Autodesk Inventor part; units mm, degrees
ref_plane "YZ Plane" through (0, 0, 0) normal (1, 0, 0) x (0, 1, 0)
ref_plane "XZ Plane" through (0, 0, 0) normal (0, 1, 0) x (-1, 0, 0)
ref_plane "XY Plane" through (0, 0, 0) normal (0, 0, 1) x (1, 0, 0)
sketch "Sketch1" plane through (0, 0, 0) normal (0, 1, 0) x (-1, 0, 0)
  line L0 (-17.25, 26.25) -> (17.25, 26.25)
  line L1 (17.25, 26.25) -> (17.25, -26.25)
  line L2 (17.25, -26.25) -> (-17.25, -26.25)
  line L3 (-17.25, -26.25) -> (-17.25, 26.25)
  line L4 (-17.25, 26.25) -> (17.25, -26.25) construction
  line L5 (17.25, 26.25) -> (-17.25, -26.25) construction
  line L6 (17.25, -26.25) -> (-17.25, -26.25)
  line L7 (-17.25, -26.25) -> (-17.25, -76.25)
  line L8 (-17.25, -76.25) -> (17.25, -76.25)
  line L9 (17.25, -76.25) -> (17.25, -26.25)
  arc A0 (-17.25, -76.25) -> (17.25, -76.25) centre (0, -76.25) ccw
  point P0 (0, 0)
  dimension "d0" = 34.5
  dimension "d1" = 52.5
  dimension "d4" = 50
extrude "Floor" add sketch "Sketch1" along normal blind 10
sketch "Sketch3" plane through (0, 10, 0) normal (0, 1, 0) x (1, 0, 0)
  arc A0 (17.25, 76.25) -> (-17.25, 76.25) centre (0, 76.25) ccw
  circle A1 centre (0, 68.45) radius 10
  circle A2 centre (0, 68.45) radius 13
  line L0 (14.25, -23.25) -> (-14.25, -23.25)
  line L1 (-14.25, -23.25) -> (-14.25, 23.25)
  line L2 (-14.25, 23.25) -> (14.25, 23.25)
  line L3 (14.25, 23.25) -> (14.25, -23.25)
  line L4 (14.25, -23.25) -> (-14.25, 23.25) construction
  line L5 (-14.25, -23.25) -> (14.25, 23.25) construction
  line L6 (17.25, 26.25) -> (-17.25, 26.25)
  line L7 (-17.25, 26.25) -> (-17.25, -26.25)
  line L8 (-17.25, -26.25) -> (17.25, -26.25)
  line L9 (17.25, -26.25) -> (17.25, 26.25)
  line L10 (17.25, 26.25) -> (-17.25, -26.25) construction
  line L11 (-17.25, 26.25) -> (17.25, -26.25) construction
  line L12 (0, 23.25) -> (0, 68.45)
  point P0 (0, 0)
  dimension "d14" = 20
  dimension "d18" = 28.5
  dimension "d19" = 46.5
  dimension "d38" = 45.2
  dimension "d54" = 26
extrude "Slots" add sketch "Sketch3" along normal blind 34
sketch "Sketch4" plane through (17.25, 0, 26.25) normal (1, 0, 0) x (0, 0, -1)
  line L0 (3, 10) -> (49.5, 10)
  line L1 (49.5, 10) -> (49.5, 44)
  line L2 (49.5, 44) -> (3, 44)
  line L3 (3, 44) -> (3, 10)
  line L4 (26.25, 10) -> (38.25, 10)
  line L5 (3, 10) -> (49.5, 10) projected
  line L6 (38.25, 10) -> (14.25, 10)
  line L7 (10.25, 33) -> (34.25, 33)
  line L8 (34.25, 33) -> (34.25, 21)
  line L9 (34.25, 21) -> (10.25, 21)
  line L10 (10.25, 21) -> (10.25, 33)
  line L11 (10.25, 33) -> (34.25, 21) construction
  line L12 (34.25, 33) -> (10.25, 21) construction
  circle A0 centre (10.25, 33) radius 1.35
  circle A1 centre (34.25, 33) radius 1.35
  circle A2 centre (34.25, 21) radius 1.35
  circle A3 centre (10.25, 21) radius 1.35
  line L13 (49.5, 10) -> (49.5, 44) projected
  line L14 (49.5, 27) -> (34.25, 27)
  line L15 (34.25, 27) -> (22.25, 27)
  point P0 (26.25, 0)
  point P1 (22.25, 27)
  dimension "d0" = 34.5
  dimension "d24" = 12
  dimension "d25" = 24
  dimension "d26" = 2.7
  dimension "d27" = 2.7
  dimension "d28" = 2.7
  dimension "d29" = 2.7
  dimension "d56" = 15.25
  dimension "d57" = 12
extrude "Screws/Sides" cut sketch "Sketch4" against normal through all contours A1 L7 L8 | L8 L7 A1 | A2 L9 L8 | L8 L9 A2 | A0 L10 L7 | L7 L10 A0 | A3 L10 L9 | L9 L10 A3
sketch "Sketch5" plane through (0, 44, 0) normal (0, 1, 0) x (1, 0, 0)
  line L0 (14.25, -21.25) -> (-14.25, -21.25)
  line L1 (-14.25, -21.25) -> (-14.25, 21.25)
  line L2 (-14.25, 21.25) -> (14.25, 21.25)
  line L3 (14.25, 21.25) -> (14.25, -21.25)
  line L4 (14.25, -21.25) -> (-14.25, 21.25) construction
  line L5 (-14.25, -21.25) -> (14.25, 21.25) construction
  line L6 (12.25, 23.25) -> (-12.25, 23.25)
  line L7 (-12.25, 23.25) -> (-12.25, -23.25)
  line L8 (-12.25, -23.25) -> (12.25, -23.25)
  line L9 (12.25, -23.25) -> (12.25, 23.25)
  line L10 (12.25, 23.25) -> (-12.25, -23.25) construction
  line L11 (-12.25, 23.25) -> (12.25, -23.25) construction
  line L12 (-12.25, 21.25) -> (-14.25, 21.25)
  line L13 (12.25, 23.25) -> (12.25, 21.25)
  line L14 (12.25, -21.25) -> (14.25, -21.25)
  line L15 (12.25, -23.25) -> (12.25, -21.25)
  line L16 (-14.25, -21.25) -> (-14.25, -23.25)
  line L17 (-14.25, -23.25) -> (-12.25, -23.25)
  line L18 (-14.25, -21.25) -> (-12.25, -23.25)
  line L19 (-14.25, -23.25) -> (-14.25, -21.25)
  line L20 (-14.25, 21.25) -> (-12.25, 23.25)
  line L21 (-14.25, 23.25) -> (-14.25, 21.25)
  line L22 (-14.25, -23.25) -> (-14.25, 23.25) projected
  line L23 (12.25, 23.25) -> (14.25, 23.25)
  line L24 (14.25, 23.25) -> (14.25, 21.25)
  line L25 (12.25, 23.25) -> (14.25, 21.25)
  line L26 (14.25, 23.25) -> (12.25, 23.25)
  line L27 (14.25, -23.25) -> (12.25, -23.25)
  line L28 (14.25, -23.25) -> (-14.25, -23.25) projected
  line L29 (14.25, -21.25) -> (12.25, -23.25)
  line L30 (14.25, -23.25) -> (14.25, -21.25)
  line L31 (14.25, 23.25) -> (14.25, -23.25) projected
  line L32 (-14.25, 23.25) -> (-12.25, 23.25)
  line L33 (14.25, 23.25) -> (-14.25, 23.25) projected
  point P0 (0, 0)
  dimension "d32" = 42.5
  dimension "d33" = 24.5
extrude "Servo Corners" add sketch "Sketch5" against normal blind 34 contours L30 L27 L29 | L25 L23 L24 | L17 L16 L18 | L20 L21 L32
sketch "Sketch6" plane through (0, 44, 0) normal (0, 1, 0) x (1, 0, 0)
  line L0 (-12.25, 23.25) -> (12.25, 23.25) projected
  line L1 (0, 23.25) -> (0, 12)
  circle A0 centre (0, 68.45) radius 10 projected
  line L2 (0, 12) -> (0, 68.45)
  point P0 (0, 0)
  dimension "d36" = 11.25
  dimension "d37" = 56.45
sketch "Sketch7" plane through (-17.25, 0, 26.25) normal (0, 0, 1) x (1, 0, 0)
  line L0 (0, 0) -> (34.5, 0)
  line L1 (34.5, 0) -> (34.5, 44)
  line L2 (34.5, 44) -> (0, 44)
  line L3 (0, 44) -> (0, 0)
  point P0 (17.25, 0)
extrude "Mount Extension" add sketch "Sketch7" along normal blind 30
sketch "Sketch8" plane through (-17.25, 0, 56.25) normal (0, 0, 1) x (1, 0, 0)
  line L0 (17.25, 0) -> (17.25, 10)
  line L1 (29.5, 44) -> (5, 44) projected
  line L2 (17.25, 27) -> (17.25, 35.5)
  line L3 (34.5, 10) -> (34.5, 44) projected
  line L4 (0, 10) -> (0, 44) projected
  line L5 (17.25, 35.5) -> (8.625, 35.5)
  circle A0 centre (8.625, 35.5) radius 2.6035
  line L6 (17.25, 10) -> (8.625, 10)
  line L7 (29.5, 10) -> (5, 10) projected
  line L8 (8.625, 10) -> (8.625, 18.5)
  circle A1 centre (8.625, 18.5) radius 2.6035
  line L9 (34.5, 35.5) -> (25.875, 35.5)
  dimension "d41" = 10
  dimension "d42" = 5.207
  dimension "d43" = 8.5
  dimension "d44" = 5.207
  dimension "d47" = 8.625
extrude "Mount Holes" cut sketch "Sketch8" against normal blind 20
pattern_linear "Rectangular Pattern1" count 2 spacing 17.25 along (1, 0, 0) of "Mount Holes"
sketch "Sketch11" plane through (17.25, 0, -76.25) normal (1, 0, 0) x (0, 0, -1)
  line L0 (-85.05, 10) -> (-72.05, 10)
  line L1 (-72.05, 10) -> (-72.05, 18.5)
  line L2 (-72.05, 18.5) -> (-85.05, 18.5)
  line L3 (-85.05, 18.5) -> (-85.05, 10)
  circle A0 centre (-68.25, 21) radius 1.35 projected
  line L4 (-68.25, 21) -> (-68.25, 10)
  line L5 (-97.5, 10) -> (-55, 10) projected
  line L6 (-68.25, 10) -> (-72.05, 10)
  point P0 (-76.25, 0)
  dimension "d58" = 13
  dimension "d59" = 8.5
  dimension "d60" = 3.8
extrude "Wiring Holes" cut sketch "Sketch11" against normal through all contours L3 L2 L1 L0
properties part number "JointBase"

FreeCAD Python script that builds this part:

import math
import FreeCAD as App
import Part
import Sketcher
from FreeCAD import Vector

doc = App.newDocument("Part")
body = doc.addObject("PartDesign::Body", "Body")

sketch1 = body.newObject("Sketcher::SketchObject", "Sketch")
sketch1.AttachmentSupport = (doc.getObject("XZ_Plane"), [""])
sketch1.MapMode = "FlatFace"
sketch1.addGeometry(Part.LineSegment(Vector(-17.25, 26.25, 0), Vector(17.25, 26.25, 0)), False)
sketch1.addGeometry(Part.LineSegment(Vector(17.25, 26.25, 0), Vector(17.25, -76.25, 0)), False)
sketch1.addGeometry(Part.ArcOfCircle(Part.Circle(Vector(0, -76.25, 0), Vector(0, 0, 1), 17.25), math.radians(180), math.radians(360)), False)
sketch1.addGeometry(Part.LineSegment(Vector(-17.25, -76.25, 0), Vector(-17.25, 26.25, 0)), False)
sketch1.addConstraint(Sketcher.Constraint("Coincident", 0, 2, 1, 1))
sketch1.addConstraint(Sketcher.Constraint("Tangent", 1, 2, 2, 2))
sketch1.addConstraint(Sketcher.Constraint("Tangent", 2, 1, 3, 1))
sketch1.addConstraint(Sketcher.Constraint("Coincident", 3, 2, 0, 1))
sketch1.addConstraint(Sketcher.Constraint("Horizontal", 0))
sketch1.addConstraint(Sketcher.Constraint("Vertical", 1))
sketch1.addConstraint(Sketcher.Constraint("Vertical", 3))
sketch1.addConstraint(Sketcher.Constraint("PointOnObject", 2, 3, -2))
sketch1.addConstraint(Sketcher.Constraint("Radius", 2, 17.25))
sketch1.addConstraint(Sketcher.Constraint("DistanceY", 1, 2, 1, 1, 102.5))
sketch1.addConstraint(Sketcher.Constraint("DistanceY", 2, 3, -1, 1, 76.25))
pad1 = body.newObject("PartDesign::Pad", "Pad")
pad1.Profile = sketch1
pad1.Length = 10
pad1.Reversed = True

sketch2 = body.newObject("Sketcher::SketchObject", "Sketch001")
sketch2.AttachmentSupport = (doc.getObject("XZ_Plane"), [""])
sketch2.MapMode = "FlatFace"
sketch2.AttachmentOffset = App.Placement(Vector(0, 0, -10), App.Rotation())
sketch2.addGeometry(Part.Circle(Vector(0, -68.45, 0), Vector(0, 0, 1), 13), False)
sketch2.addGeometry(Part.Circle(Vector(0, -68.45, 0), Vector(0, 0, 1), 10), False)
sketch2.addGeometry(Part.LineSegment(Vector(17.25, -26.25, 0), Vector(0, -26.25, 0)), False)
sketch2.addGeometry(Part.LineSegment(Vector(0, -26.25, 0), Vector(-17.25, -26.25, 0)), False)
sketch2.addGeometry(Part.LineSegment(Vector(-17.25, -26.25, 0), Vector(-17.25, 26.25, 0)), False)
sketch2.addGeometry(Part.LineSegment(Vector(-17.25, 26.25, 0), Vector(17.25, 26.25, 0)), False)
sketch2.addGeometry(Part.LineSegment(Vector(17.25, 26.25, 0), Vector(17.25, -26.25, 0)), False)
sketch2.addGeometry(Part.LineSegment(Vector(-14.25, -23.25, 0), Vector(0, -23.25, 0)), False)
sketch2.addGeometry(Part.LineSegment(Vector(0, -23.25, 0), Vector(14.25, -23.25, 0)), False)
sketch2.addGeometry(Part.LineSegment(Vector(14.25, -23.25, 0), Vector(14.25, 23.25, 0)), False)
sketch2.addGeometry(Part.LineSegment(Vector(14.25, 23.25, 0), Vector(-14.25, 23.25, 0)), False)
sketch2.addGeometry(Part.LineSegment(Vector(-14.25, 23.25, 0), Vector(-14.25, -23.25, 0)), False)
sketch2.addConstraint(Sketcher.Constraint("Coincident", 2, 2, 3, 1))
sketch2.addConstraint(Sketcher.Constraint("Coincident", 3, 2, 4, 1))
sketch2.addConstraint(Sketcher.Constraint("Coincident", 4, 2, 5, 1))
sketch2.addConstraint(Sketcher.Constraint("Coincident", 5, 2, 6, 1))
sketch2.addConstraint(Sketcher.Constraint("Coincident", 6, 2, 2, 1))
sketch2.addConstraint(Sketcher.Constraint("Coincident", 7, 2, 8, 1))
sketch2.addConstraint(Sketcher.Constraint("Coincident", 8, 2, 9, 1))
sketch2.addConstraint(Sketcher.Constraint("Coincident", 9, 2, 10, 1))
sketch2.addConstraint(Sketcher.Constraint("Coincident", 10, 2, 11, 1))
sketch2.addConstraint(Sketcher.Constraint("Coincident", 11, 2, 7, 1))
sketch2.addConstraint(Sketcher.Constraint("Horizontal", 2))
sketch2.addConstraint(Sketcher.Constraint("Horizontal", 3))
sketch2.addConstraint(Sketcher.Constraint("Vertical", 4))
sketch2.addConstraint(Sketcher.Constraint("Horizontal", 5))
sketch2.addConstraint(Sketcher.Constraint("Vertical", 6))
sketch2.addConstraint(Sketcher.Constraint("Horizontal", 7))
sketch2.addConstraint(Sketcher.Constraint("Horizontal", 8))
sketch2.addConstraint(Sketcher.Constraint("Vertical", 9))
sketch2.addConstraint(Sketcher.Constraint("Horizontal", 10))
sketch2.addConstraint(Sketcher.Constraint("Vertical", 11))
sketch2.addConstraint(Sketcher.Constraint("Coincident", 1, 3, 0, 3))
sketch2.addConstraint(Sketcher.Constraint("Symmetric", 3, 2, 5, 2, -1, 1))
sketch2.addConstraint(Sketcher.Constraint("Symmetric", 8, 2, 10, 2, -1, 1))
sketch2.addConstraint(Sketcher.Constraint("PointOnObject", 0, 3, -2))
sketch2.addConstraint(Sketcher.Constraint("PointOnObject", 2, 2, -2))
sketch2.addConstraint(Sketcher.Constraint("PointOnObject", 7, 2, -2))
sketch2.addConstraint(Sketcher.Constraint("Diameter", 0, 26.0))
sketch2.addConstraint(Sketcher.Constraint("Diameter", 1, 20.0))
sketch2.addConstraint(Sketcher.Constraint("DistanceX", 10, 2, 10, 1, 28.5))
sketch2.addConstraint(Sketcher.Constraint("DistanceY", 9, 1, 9, 2, 46.5))
sketch2.addConstraint(Sketcher.Constraint("DistanceY", 0, 3, 7, 2, 45.2))
sketch2.addConstraint(Sketcher.Constraint("DistanceX", 5, 1, 5, 2, 34.5))
sketch2.addConstraint(Sketcher.Constraint("DistanceY", 4, 1, 4, 2, 52.5))
pad2 = body.newObject("PartDesign::Pad", "Pad001")
pad2.Profile = sketch2
pad2.Length = 34
pad2.Reversed = True

sketch3 = body.newObject("Sketcher::SketchObject", "Sketch002")
sketch3.AttachmentSupport = (doc.getObject("YZ_Plane"), [""])
sketch3.MapMode = "FlatFace"
sketch3.AttachmentOffset = App.Placement(Vector(0, 0, 17.25), App.Rotation())
sketch3.addGeometry(Part.Circle(Vector(33, -8, 0), Vector(0, 0, 1), 1.35), False)
sketch3.addGeometry(Part.Circle(Vector(21, -8, 0), Vector(0, 0, 1), 1.35), False)
sketch3.addGeometry(Part.Circle(Vector(33, 16, 0), Vector(0, 0, 1), 1.35), False)
sketch3.addGeometry(Part.Circle(Vector(21, 16, 0), Vector(0, 0, 1), 1.35), False)
sketch3.addConstraint(Sketcher.Constraint("Equal", 0, 1))
sketch3.addConstraint(Sketcher.Constraint("Equal", 1, 2))
sketch3.addConstraint(Sketcher.Constraint("Equal", 2, 3))
sketch3.addConstraint(Sketcher.Constraint("Horizontal", 0, 3, 1, 3))
sketch3.addConstraint(Sketcher.Constraint("Horizontal", 2, 3, 3, 3))
sketch3.addConstraint(Sketcher.Constraint("Vertical", 0, 3, 2, 3))
sketch3.addConstraint(Sketcher.Constraint("Vertical", 1, 3, 3, 3))
sketch3.addConstraint(Sketcher.Constraint("Diameter", 0, 2.7))
sketch3.addConstraint(Sketcher.Constraint("DistanceX", 1, 3, 0, 3, 12.0))
sketch3.addConstraint(Sketcher.Constraint("DistanceY", 0, 3, 2, 3, 24.0))
sketch3.addConstraint(Sketcher.Constraint("DistanceX", -1, 1, 0, 3, 33.0))
sketch3.addConstraint(Sketcher.Constraint("DistanceY", 0, 3, -1, 1, 8.0))
pocket1 = body.newObject("PartDesign::Pocket", "Pocket")
pocket1.Profile = sketch3
pocket1.Type = "ThroughAll"

sketch4 = body.newObject("Sketcher::SketchObject", "Sketch003")
sketch4.AttachmentSupport = (doc.getObject("XZ_Plane"), [""])
sketch4.MapMode = "FlatFace"
sketch4.AttachmentOffset = App.Placement(Vector(0, 0, -44), App.Rotation())
sketch4.addGeometry(Part.LineSegment(Vector(14.25, 23.25, 0), Vector(14.25, 21.25, 0)), False)
sketch4.addGeometry(Part.LineSegment(Vector(14.25, 21.25, 0), Vector(12.25, 23.25, 0)), False)
sketch4.addGeometry(Part.LineSegment(Vector(12.25, 23.25, 0), Vector(14.25, 23.25, 0)), False)
sketch4.addGeometry(Part.LineSegment(Vector(12.25, -23.25, 0), Vector(14.25, -21.25, 0)), False)
sketch4.addGeometry(Part.LineSegment(Vector(14.25, -21.25, 0), Vector(14.25, -23.25, 0)), False)
sketch4.addGeometry(Part.LineSegment(Vector(14.25, -23.25, 0), Vector(12.25, -23.25, 0)), False)
sketch4.addGeometry(Part.LineSegment(Vector(-14.25, 23.25, 0), Vector(-12.25, 23.25, 0)), False)
sketch4.addGeometry(Part.LineSegment(Vector(-12.25, 23.25, 0), Vector(-14.25, 21.25, 0)), False)
sketch4.addGeometry(Part.LineSegment(Vector(-14.25, 21.25, 0), Vector(-14.25, 23.25, 0)), False)
sketch4.addGeometry(Part.LineSegment(Vector(-14.25, -21.25, 0), Vector(-12.25, -23.25, 0)), False)
sketch4.addGeometry(Part.LineSegment(Vector(-12.25, -23.25, 0), Vector(-14.25, -23.25, 0)), False)
sketch4.addGeometry(Part.LineSegment(Vector(-14.25, -23.25, 0), Vector(-14.25, -21.25, 0)), False)
sketch4.addConstraint(Sketcher.Constraint("Coincident", 0, 2, 1, 1))
sketch4.addConstraint(Sketcher.Constraint("Coincident", 1, 2, 2, 1))
sketch4.addConstraint(Sketcher.Constraint("Coincident", 2, 2, 0, 1))
sketch4.addConstraint(Sketcher.Constraint("Coincident", 3, 2, 4, 1))
sketch4.addConstraint(Sketcher.Constraint("Coincident", 4, 2, 5, 1))
sketch4.addConstraint(Sketcher.Constraint("Coincident", 5, 2, 3, 1))
sketch4.addConstraint(Sketcher.Constraint("Coincident", 6, 2, 7, 1))
sketch4.addConstraint(Sketcher.Constraint("Coincident", 7, 2, 8, 1))
sketch4.addConstraint(Sketcher.Constraint("Coincident", 8, 2, 6, 1))
sketch4.addConstraint(Sketcher.Constraint("Coincident", 9, 2, 10, 1))
sketch4.addConstraint(Sketcher.Constraint("Coincident", 10, 2, 11, 1))
sketch4.addConstraint(Sketcher.Constraint("Coincident", 11, 2, 9, 1))
sketch4.addConstraint(Sketcher.Constraint("Vertical", 0))
sketch4.addConstraint(Sketcher.Constraint("Horizontal", 2))
sketch4.addConstraint(Sketcher.Constraint("Vertical", 4))
sketch4.addConstraint(Sketcher.Constraint("Horizontal", 5))
sketch4.addConstraint(Sketcher.Constraint("Horizontal", 6))
sketch4.addConstraint(Sketcher.Constraint("Vertical", 8))
sketch4.addConstraint(Sketcher.Constraint("Horizontal", 10))
sketch4.addConstraint(Sketcher.Constraint("Vertical", 11))
sketch4.addConstraint(Sketcher.Constraint("Symmetric", 5, 2, 6, 2, -1, 1))
sketch4.addConstraint(Sketcher.Constraint("Symmetric", 3, 2, 7, 2, -1, 1))
sketch4.addConstraint(Sketcher.Constraint("Symmetric", 1, 2, 9, 2, -1, 1))
sketch4.addConstraint(Sketcher.Constraint("Symmetric", 0, 2, 11, 2, -1, 1))
sketch4.addConstraint(Sketcher.Constraint("Symmetric", 1, 2, 6, 2, -2))
sketch4.addConstraint(Sketcher.Constraint("Symmetric", 0, 2, 7, 2, -2))
sketch4.addConstraint(Sketcher.Constraint("Perpendicular", 1, 3))
sketch4.addConstraint(Sketcher.Constraint("DistanceY", 3, 2, 0, 2, 42.5))
sketch4.addConstraint(Sketcher.Constraint("DistanceX", 6, 2, 1, 2, 24.5))
sketch4.addConstraint(Sketcher.Constraint("DistanceX", 2, 1, 2, 2, 2.0))
pad3 = body.newObject("PartDesign::Pad", "Pad002")
pad3.Profile = sketch4
pad3.Length = 34

sketch5 = body.newObject("Sketcher::SketchObject", "Sketch004")
sketch5.AttachmentSupport = (doc.getObject("XY_Plane"), [""])
sketch5.MapMode = "FlatFace"
sketch5.AttachmentOffset = App.Placement(Vector(0, 0, 26.25), App.Rotation())
sketch5.addGeometry(Part.LineSegment(Vector(-17.25, 44, 0), Vector(-17.25, 0, 0)), False)
sketch5.addGeometry(Part.LineSegment(Vector(-17.25, 0, 0), Vector(17.25, 0, 0)), False)
sketch5.addGeometry(Part.LineSegment(Vector(17.25, 0, 0), Vector(17.25, 44, 0)), False)
sketch5.addGeometry(Part.LineSegment(Vector(17.25, 44, 0), Vector(-17.25, 44, 0)), False)
sketch5.addConstraint(Sketcher.Constraint("Coincident", 0, 2, 1, 1))
sketch5.addConstraint(Sketcher.Constraint("Coincident", 1, 2, 2, 1))
sketch5.addConstraint(Sketcher.Constraint("Coincident", 2, 2, 3, 1))
sketch5.addConstraint(Sketcher.Constraint("Coincident", 3, 2, 0, 1))
sketch5.addConstraint(Sketcher.Constraint("Vertical", 0))
sketch5.addConstraint(Sketcher.Constraint("Horizontal", 1))
sketch5.addConstraint(Sketcher.Constraint("Vertical", 2))
sketch5.addConstraint(Sketcher.Constraint("Horizontal", 3))
sketch5.addConstraint(Sketcher.Constraint("Symmetric", 0, 2, 1, 2, -1, 1))
sketch5.addConstraint(Sketcher.Constraint("DistanceY", 0, 2, 0, 1, 44.0))
sketch5.addConstraint(Sketcher.Constraint("DistanceX", 1, 1, 1, 2, 34.5))
pad4 = body.newObject("PartDesign::Pad", "Pad003")
pad4.Profile = sketch5
pad4.Length = 30

sketch6 = body.newObject("Sketcher::SketchObject", "Sketch005")
sketch6.AttachmentSupport = (doc.getObject("XY_Plane"), [""])
sketch6.MapMode = "FlatFace"
sketch6.AttachmentOffset = App.Placement(Vector(0, 0, 56.25), App.Rotation())
sketch6.addGeometry(Part.Circle(Vector(-8.625, 35.5, 0), Vector(0, 0, 1), 2.6035), False)
sketch6.addGeometry(Part.Circle(Vector(-8.625, 18.5, 0), Vector(0, 0, 1), 2.6035), False)
sketch6.addConstraint(Sketcher.Constraint("Equal", 0, 1))
sketch6.addConstraint(Sketcher.Constraint("Vertical", 0, 3, 1, 3))
sketch6.addConstraint(Sketcher.Constraint("Diameter", 0, 5.207))
sketch6.addConstraint(Sketcher.Constraint("DistanceX", 0, 3, -1, 1, 8.625))
sketch6.addConstraint(Sketcher.Constraint("DistanceY", 1, 3, 0, 3, 17.0))
sketch6.addConstraint(Sketcher.Constraint("DistanceY", -1, 1, 0, 3, 35.5))
pocket2 = body.newObject("PartDesign::Pocket", "Pocket001")
pocket2.Profile = sketch6
pocket2.Length = 20
doc.recompute()

linearpattern = body.newObject("PartDesign::LinearPattern", "LinearPattern")
linearpattern.Originals = [pocket2]
linearpattern.Direction = (doc.getObject("X_Axis"), [""])
linearpattern.Mode = "offset"
linearpattern.Offset = 17.25
linearpattern.Occurrences = 2
body.Tip = linearpattern

sketch7 = body.newObject("Sketcher::SketchObject", "Sketch006")
sketch7.AttachmentSupport = (doc.getObject("YZ_Plane"), [""])
sketch7.MapMode = "FlatFace"
sketch7.AttachmentOffset = App.Placement(Vector(0, 0, 17.25), App.Rotation())
sketch7.addGeometry(Part.LineSegment(Vector(18.5, 8.8, 0), Vector(10, 8.8, 0)), False)
sketch7.addGeometry(Part.LineSegment(Vector(10, 8.8, 0), Vector(10, -4.2, 0)), False)
sketch7.addGeometry(Part.LineSegment(Vector(10, -4.2, 0), Vector(18.5, -4.2, 0)), False)
sketch7.addGeometry(Part.LineSegment(Vector(18.5, -4.2, 0), Vector(18.5, 8.8, 0)), False)
sketch7.addConstraint(Sketcher.Constraint("Coincident", 0, 2, 1, 1))
sketch7.addConstraint(Sketcher.Constraint("Coincident", 1, 2, 2, 1))
sketch7.addConstraint(Sketcher.Constraint("Coincident", 2, 2, 3, 1))
sketch7.addConstraint(Sketcher.Constraint("Coincident", 3, 2, 0, 1))
sketch7.addConstraint(Sketcher.Constraint("Horizontal", 0))
sketch7.addConstraint(Sketcher.Constraint("Vertical", 1))
sketch7.addConstraint(Sketcher.Constraint("Horizontal", 2))
sketch7.addConstraint(Sketcher.Constraint("Vertical", 3))
sketch7.addConstraint(Sketcher.Constraint("DistanceY", 1, 2, 1, 1, 13.0))
sketch7.addConstraint(Sketcher.Constraint("DistanceX", 0, 2, 0, 1, 8.5))
sketch7.addConstraint(Sketcher.Constraint("DistanceX", -1, 1, 0, 2, 10.0))
sketch7.addConstraint(Sketcher.Constraint("DistanceY", -1, 1, 0, 2, 8.8))
pocket3 = body.newObject("PartDesign::Pocket", "Pocket002")
pocket3.Profile = sketch7
pocket3.Type = "ThroughAll"

doc.recompute()
